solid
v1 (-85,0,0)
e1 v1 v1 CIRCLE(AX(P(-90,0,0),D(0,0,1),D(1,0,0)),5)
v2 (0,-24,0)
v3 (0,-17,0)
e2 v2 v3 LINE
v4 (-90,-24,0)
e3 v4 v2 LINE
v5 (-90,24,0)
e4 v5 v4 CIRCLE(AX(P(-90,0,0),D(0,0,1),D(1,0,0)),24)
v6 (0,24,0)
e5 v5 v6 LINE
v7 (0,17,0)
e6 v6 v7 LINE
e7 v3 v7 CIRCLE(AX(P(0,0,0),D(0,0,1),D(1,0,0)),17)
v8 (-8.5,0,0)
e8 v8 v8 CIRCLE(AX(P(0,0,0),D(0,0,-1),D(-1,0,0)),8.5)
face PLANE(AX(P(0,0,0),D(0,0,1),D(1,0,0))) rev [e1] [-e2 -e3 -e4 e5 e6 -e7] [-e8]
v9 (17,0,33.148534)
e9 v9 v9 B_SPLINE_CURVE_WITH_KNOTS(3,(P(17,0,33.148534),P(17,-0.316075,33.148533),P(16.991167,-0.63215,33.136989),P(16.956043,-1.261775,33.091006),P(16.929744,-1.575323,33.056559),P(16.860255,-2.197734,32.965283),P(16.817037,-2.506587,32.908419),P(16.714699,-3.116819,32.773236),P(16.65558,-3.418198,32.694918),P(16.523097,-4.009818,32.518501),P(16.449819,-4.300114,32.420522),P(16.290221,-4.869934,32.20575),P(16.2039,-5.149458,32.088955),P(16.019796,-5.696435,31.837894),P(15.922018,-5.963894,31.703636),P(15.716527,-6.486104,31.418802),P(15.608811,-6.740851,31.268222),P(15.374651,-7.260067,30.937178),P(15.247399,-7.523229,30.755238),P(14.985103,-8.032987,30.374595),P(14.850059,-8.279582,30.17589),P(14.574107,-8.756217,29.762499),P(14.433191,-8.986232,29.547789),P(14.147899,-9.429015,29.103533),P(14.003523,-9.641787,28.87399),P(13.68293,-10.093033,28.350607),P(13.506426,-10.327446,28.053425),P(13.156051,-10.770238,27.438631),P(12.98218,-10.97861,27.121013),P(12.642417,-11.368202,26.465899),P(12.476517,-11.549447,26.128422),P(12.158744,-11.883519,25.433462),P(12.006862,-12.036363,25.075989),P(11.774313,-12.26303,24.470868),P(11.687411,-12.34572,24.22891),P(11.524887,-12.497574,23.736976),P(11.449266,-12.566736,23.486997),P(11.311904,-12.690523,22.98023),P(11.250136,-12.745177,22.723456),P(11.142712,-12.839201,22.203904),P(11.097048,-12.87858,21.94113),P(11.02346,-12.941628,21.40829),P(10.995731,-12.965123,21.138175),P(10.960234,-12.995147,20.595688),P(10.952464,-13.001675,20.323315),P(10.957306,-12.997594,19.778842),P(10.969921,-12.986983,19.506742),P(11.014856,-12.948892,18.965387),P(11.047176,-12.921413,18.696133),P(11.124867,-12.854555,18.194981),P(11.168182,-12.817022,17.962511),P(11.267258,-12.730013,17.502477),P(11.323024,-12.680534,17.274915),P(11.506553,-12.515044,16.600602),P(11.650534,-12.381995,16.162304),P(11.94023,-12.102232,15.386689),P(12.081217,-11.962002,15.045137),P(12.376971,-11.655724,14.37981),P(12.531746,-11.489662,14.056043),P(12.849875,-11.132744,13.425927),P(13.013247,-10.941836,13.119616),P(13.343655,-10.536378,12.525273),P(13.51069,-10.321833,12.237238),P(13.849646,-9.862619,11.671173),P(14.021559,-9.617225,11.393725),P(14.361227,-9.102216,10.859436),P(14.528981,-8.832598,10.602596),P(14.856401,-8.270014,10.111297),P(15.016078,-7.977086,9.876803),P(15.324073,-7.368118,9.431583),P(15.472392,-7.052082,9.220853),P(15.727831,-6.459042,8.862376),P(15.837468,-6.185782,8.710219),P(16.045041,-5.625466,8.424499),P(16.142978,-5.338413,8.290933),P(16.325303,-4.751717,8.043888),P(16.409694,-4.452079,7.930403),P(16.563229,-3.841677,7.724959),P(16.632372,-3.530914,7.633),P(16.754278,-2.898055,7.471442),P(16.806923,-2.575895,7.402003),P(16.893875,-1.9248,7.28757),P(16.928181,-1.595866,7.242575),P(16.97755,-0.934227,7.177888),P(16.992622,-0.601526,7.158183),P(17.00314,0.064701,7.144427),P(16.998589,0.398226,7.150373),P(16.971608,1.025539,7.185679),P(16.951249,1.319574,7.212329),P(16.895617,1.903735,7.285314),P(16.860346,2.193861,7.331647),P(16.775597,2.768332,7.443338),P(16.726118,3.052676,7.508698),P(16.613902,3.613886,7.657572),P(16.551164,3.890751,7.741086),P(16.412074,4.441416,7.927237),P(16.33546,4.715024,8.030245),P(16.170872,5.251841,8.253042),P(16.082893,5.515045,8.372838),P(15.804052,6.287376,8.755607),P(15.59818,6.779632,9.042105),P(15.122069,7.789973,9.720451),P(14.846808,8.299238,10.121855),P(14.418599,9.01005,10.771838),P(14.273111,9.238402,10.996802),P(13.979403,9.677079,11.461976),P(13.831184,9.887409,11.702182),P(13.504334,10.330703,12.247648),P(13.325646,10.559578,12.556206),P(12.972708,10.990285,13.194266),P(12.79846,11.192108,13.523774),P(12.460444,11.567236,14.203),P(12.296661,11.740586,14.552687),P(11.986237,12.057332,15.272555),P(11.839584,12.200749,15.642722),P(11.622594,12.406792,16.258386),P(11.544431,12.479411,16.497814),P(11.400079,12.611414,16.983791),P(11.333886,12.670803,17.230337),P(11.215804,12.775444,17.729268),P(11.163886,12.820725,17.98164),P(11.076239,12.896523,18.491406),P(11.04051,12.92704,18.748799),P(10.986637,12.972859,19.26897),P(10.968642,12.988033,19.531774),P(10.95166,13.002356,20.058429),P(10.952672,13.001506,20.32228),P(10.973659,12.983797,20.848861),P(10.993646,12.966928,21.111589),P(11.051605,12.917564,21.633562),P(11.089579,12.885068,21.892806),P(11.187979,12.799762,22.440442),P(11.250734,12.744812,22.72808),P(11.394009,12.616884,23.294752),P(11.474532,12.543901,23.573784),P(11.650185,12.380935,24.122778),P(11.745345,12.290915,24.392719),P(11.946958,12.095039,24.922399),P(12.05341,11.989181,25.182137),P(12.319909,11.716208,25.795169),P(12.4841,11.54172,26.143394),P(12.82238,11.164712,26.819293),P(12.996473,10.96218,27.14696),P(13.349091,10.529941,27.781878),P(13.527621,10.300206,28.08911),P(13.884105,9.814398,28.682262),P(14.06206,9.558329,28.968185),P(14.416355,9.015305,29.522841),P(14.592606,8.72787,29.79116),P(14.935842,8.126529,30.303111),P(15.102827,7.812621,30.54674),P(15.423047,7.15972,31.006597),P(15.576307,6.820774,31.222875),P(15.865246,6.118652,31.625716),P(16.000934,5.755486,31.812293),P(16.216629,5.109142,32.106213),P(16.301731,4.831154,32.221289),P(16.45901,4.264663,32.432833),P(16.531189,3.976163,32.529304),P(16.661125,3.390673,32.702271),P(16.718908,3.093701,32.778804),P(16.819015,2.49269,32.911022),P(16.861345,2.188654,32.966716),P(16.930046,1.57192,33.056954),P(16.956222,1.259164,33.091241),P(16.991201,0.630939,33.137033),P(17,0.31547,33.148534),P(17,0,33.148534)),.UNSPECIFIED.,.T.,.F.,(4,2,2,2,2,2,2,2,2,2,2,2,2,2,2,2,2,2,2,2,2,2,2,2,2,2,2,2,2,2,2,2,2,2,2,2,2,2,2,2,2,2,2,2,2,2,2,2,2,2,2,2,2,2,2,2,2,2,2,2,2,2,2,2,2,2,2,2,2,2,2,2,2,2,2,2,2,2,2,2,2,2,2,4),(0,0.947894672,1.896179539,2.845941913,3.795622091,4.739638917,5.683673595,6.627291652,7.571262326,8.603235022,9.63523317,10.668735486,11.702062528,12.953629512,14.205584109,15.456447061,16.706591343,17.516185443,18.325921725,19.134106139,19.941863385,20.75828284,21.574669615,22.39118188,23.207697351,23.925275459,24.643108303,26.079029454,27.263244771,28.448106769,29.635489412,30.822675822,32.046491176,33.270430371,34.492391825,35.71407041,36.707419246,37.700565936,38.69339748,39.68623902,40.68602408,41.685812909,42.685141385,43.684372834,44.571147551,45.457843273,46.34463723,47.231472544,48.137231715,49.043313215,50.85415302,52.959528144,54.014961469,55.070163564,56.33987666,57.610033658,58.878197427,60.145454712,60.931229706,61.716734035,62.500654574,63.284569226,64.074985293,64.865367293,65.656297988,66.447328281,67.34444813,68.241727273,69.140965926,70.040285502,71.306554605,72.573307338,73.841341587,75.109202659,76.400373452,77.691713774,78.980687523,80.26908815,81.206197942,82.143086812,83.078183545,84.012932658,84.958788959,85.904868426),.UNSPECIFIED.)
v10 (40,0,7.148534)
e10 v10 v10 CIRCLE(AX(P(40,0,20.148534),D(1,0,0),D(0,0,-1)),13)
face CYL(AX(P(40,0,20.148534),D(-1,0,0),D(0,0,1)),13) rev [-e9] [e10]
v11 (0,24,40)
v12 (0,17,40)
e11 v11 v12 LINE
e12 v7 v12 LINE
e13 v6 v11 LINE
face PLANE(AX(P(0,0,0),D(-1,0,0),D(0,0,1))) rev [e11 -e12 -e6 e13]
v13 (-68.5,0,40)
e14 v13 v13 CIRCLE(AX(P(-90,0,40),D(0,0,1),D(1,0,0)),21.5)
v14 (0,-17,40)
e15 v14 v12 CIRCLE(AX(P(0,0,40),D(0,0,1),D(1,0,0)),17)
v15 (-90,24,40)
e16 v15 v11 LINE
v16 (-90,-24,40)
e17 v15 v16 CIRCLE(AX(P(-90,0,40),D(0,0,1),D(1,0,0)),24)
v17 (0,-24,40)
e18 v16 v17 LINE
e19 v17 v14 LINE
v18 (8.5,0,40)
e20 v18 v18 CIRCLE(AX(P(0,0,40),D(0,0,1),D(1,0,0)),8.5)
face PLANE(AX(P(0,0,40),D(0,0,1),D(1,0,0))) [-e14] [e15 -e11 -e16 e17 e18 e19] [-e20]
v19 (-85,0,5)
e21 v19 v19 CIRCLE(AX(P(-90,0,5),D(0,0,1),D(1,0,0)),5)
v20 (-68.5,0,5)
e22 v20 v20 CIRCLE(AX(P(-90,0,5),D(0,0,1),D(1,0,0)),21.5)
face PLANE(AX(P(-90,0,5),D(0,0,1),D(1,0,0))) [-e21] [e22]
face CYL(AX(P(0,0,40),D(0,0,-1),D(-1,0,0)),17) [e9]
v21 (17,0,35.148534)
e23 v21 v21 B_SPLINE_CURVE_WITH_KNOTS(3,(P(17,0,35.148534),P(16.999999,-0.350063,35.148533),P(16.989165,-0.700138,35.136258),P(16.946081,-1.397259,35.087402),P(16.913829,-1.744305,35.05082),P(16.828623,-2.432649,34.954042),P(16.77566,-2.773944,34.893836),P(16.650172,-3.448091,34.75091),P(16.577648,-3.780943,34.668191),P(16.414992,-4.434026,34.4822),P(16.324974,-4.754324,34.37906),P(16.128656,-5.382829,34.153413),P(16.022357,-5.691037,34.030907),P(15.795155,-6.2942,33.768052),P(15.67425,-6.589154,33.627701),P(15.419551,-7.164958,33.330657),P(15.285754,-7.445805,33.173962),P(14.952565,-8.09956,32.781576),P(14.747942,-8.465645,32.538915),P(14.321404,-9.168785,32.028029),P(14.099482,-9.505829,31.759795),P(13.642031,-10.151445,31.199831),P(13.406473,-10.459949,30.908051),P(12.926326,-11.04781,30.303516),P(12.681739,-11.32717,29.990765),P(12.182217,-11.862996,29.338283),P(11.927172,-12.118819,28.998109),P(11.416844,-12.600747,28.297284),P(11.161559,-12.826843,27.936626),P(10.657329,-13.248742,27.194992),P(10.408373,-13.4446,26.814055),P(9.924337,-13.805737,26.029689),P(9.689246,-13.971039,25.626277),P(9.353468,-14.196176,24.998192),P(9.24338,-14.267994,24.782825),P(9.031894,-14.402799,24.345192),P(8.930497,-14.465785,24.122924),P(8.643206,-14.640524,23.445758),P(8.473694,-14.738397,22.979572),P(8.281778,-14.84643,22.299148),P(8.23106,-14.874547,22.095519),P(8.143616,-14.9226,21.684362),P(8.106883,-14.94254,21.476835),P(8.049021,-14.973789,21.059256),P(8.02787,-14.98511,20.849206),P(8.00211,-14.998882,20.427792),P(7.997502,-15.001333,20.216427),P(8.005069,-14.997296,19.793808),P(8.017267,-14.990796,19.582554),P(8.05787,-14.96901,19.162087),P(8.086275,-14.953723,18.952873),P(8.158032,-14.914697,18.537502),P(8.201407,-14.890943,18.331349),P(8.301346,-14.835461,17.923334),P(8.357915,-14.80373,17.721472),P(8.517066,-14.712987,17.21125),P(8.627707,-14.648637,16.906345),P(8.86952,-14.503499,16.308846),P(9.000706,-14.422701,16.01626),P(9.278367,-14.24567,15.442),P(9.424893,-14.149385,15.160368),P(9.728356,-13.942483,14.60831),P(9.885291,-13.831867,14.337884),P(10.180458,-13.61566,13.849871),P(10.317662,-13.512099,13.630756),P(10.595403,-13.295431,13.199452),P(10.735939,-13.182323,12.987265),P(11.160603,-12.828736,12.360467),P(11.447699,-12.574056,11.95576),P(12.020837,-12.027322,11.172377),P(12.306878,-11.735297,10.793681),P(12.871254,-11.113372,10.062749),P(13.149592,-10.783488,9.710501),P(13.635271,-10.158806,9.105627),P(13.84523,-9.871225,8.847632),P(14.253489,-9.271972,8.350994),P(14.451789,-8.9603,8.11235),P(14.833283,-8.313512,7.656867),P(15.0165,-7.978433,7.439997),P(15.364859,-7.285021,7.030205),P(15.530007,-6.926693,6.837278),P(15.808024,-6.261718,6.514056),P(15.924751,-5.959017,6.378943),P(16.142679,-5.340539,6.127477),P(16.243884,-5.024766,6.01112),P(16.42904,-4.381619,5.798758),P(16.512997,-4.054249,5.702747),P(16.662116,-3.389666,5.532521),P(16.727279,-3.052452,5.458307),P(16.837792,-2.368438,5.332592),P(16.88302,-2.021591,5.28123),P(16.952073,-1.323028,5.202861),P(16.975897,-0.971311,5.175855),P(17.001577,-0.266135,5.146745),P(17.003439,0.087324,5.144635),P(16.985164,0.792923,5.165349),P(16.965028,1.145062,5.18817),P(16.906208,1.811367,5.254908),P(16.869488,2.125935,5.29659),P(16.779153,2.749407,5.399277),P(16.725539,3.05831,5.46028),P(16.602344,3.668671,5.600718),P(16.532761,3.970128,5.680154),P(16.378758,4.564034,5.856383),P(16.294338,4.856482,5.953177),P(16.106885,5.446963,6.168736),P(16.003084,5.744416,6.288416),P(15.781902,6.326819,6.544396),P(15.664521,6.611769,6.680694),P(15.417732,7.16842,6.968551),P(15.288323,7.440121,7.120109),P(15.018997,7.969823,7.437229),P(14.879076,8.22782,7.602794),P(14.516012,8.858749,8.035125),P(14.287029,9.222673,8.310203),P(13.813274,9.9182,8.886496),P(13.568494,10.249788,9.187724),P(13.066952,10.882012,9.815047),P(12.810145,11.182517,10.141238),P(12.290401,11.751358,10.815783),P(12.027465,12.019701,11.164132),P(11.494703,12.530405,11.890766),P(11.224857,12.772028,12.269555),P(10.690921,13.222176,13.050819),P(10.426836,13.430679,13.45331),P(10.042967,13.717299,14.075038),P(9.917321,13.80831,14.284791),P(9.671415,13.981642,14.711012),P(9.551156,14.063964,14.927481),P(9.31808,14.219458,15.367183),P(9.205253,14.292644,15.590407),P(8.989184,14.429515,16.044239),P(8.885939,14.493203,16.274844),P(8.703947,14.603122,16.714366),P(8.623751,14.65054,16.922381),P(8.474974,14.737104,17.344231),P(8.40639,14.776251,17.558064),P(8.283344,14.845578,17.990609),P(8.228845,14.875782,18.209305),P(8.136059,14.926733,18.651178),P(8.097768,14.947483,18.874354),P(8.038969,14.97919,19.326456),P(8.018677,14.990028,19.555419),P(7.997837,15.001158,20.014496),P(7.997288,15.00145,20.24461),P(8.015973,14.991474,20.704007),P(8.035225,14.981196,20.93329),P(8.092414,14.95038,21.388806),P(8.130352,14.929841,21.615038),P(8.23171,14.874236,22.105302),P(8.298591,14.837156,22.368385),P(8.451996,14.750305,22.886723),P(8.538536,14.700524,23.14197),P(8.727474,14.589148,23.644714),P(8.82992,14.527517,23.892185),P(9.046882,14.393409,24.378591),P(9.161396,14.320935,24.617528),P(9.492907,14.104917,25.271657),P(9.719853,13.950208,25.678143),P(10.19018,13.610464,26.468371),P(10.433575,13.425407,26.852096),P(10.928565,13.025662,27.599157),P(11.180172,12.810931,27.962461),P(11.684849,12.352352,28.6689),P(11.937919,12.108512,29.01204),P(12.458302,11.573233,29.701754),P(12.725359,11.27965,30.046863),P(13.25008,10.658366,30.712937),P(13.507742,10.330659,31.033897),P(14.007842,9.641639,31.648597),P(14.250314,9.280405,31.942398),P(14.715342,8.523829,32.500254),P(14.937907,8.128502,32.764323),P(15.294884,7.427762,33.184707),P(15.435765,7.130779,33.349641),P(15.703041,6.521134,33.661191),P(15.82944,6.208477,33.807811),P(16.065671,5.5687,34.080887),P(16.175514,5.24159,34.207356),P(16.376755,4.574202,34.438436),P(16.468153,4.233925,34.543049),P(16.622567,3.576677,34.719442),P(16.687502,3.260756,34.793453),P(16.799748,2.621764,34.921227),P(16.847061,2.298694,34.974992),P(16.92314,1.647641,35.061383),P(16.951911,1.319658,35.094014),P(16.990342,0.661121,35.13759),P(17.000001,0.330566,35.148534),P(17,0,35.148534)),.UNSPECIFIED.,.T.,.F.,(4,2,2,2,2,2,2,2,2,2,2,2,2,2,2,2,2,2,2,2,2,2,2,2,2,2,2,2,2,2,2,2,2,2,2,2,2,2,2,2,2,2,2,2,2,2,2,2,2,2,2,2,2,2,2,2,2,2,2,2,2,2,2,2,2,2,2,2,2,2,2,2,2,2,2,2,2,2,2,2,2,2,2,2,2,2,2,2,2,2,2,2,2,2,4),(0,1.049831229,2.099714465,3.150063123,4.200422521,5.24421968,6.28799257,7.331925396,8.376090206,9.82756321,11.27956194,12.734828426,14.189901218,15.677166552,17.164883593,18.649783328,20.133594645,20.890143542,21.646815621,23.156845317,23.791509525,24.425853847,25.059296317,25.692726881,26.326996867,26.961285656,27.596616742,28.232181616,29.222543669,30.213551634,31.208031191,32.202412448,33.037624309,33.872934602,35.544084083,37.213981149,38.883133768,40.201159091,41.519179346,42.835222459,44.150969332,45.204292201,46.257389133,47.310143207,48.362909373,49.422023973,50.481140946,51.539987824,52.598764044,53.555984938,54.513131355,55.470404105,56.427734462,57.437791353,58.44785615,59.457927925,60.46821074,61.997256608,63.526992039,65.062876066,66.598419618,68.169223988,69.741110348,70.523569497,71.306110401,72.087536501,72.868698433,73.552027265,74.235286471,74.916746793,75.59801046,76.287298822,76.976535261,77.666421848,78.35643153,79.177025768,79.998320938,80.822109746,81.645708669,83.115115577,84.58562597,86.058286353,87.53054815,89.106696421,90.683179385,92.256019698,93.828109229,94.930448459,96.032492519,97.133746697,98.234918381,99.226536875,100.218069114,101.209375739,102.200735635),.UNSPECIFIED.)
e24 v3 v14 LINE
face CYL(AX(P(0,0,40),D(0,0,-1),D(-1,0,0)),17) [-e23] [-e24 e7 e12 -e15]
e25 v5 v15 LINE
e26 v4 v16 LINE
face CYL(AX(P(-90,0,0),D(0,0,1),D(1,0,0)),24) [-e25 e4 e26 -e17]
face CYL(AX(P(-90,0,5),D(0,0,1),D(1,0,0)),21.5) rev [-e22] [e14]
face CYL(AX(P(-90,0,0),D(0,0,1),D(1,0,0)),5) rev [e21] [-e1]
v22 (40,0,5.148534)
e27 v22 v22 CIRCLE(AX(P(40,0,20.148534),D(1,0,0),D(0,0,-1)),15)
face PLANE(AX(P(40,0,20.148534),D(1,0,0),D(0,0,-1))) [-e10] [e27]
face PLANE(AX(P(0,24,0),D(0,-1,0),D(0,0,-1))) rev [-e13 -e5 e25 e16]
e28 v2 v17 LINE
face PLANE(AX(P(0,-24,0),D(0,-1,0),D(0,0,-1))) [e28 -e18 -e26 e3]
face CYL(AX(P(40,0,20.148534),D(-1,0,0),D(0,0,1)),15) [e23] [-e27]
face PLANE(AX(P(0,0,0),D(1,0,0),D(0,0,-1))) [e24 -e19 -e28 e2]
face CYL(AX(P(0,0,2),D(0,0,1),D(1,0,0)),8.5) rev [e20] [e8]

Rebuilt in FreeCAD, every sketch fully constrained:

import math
import FreeCAD as App
import Part
import Sketcher
Q = App.Units.Quantity

doc = App.newDocument("Part")
body = doc.addObject("PartDesign::Body", "Body")

# Sketch on XY plane
sketch1 = body.newObject("Sketcher::SketchObject", "Sketch")
sketch1.AttachmentSupport = (doc.getObject("XY_Plane"), [""])
sketch1.MapMode = "FlatFace"
sketch1.addGeometry(Part.Circle(App.Vector(0, 0, 0), App.Vector(0, 0, 1), 17), False)
sketch1.addConstraint([
    Sketcher.Constraint("Coincident", 0, 3, -1, 1),
    Sketcher.Constraint("Diameter", 0, Q("34 mm")),
])
pad1 = body.newObject("PartDesign::Pad", "Pad")
pad1.Profile = sketch1
pad1.Length = 40

# Sketch on XY plane
sketch2 = body.newObject("Sketcher::SketchObject", "Sketch001")
sketch2.AttachmentSupport = (doc.getObject("XY_Plane"), [""])
sketch2.MapMode = "FlatFace"
sketch2.AttachmentOffset = App.Placement(App.Vector(0, 0, 40), App.Rotation())
sketch2.addGeometry(Part.Circle(App.Vector(0, 0, 0), App.Vector(0, 0, 1), 8.5), False)
sketch2.addConstraint([
    Sketcher.Constraint("Coincident", 0, 3, -1, 1),
    Sketcher.Constraint("Diameter", 0, Q("17 mm")),
])
pocket1 = body.newObject("PartDesign::Pocket", "Pocket")
pocket1.Profile = sketch2
pocket1.Length = 38

# Sketch on XY plane
sketch3 = body.newObject("Sketcher::SketchObject", "Sketch002")
sketch3.AttachmentSupport = (doc.getObject("XY_Plane"), [""])
sketch3.MapMode = "FlatFace"
sketch3.AttachmentOffset = App.Placement(App.Vector(0, 0, 38), App.Rotation())
sketch3.addGeometry(Part.Circle(App.Vector(0, 0, 0), App.Vector(0, 0, 1), 8.5), False)
sketch3.addConstraint([
    Sketcher.Constraint("Coincident", 0, 3, -1, 1),
    Sketcher.Constraint("Diameter", 0, Q("17 mm")),
])
pocket2 = body.newObject("PartDesign::Pocket", "Pocket001")
pocket2.Profile = sketch3
pocket2.Length = 38

# Sketch on YZ plane
sketch4 = body.newObject("Sketcher::SketchObject", "Sketch003")
sketch4.AttachmentSupport = (doc.getObject("YZ_Plane"), [""])
sketch4.MapMode = "FlatFace"
sketch4.addGeometry([
    Part.Circle(App.Vector(0, 20.148534, 0), App.Vector(0, 0, 1), 15),
    Part.Circle(App.Vector(0, 20.148534, 0), App.Vector(0, 0, 1), 13),
], False)
sketch4.addConstraint([
    Sketcher.Constraint("Coincident", 1, 3, 0, 3),
    Sketcher.Constraint("PointOnObject", 0, 3, -2),
    Sketcher.Constraint("Diameter", 0, Q("30 mm")),
    Sketcher.Constraint("Diameter", 1, Q("26 mm")),
    Sketcher.Constraint("DistanceY", -1, 1, 0, 3, Q("20.148534 mm")),
])
pad2 = body.newObject("PartDesign::Pad", "Pad001")
pad2.Profile = sketch4
pad2.Length = 40

# Sketch on XY plane
sketch5 = body.newObject("Sketcher::SketchObject", "Sketch004")
sketch5.AttachmentSupport = (doc.getObject("XY_Plane"), [""])
sketch5.MapMode = "FlatFace"
sketch5.AttachmentOffset = App.Placement(App.Vector(0, 0, 50), App.Rotation())
sketch5.addGeometry(Part.Circle(App.Vector(0, 0, 0), App.Vector(0, 0, 1), 8.5), False)
sketch5.addConstraint([
    Sketcher.Constraint("Coincident", 0, 3, -1, 1),
    Sketcher.Constraint("Diameter", 0, Q("17 mm")),
])
pocket3 = body.newObject("PartDesign::Pocket", "Pocket002")
pocket3.Profile = sketch5
pocket3.Length = 50

# Sketch on XY plane
sketch6 = body.newObject("Sketcher::SketchObject", "Sketch005")
sketch6.AttachmentSupport = (doc.getObject("XY_Plane"), [""])
sketch6.MapMode = "FlatFace"
sketch6.addGeometry([
    Part.ArcOfCircle(Part.Circle(App.Vector(-90, 0, 0), App.Vector(0, 0, 1), 24), math.radians(90), math.radians(270)),  # 0
    Part.LineSegment(App.Vector(-90, -24, 0), App.Vector(0, -24, 0)),  # 1
    Part.LineSegment(App.Vector(0, -24, 0), App.Vector(0, -17, 0)),  # 2
    Part.ArcOfCircle(Part.Circle(App.Vector(0, 0, 0), App.Vector(0, 0, 1), 17), math.radians(90), math.radians(270)),  # 3
    Part.LineSegment(App.Vector(0, 17, 0), App.Vector(0, 24, 0)),  # 4
    Part.LineSegment(App.Vector(0, 24, 0), App.Vector(-90, 24, 0)),  # 5
], False)
sketch6.addConstraint([
    Sketcher.Constraint("Tangent", 0, 2, 1, 1),
    Sketcher.Constraint("Coincident", 1, 2, 2, 1),
    Sketcher.Constraint("Coincident", 2, 2, 3, 2),
    Sketcher.Constraint("Coincident", 3, 1, 4, 1),
    Sketcher.Constraint("Coincident", 4, 2, 5, 1),
    Sketcher.Constraint("Tangent", 5, 2, 0, 1),
    Sketcher.Constraint("Horizontal", 1),
    Sketcher.Constraint("Vertical", 2),
    Sketcher.Constraint("Vertical", 4),
    Sketcher.Constraint("Horizontal", 5),
    Sketcher.Constraint("Coincident", 3, 3, -1, 1),
    Sketcher.Constraint("Symmetric", 1, 2, 4, 2, -1, 1),
    Sketcher.Constraint("PointOnObject", 1, 2, -2),
    Sketcher.Constraint("Radius", 0, Q("24 mm")),
    Sketcher.Constraint("Radius", 3, Q("17 mm")),
    Sketcher.Constraint("DistanceX", 1, 1, 1, 2, Q("90 mm")),
])
pad3 = body.newObject("PartDesign::Pad", "Pad002")
pad3.Profile = sketch6
pad3.Length = 40

# Sketch on XY plane
sketch7 = body.newObject("Sketcher::SketchObject", "Sketch006")
sketch7.AttachmentSupport = (doc.getObject("XY_Plane"), [""])
sketch7.MapMode = "FlatFace"
sketch7.AttachmentOffset = App.Placement(App.Vector(0, 0, 40), App.Rotation())
sketch7.addGeometry(Part.Circle(App.Vector(-90, 0, 0), App.Vector(0, 0, 1), 21.5), False)
sketch7.addConstraint([
    Sketcher.Constraint("PointOnObject", 0, 3, -1),
    Sketcher.Constraint("Diameter", 0, Q("43 mm")),
    Sketcher.Constraint("DistanceX", 0, 3, -1, 1, Q("90 mm")),
])
pocket4 = body.newObject("PartDesign::Pocket", "Pocket003")
pocket4.Profile = sketch7
pocket4.Length = 35

# Sketch on XY plane
sketch8 = body.newObject("Sketcher::SketchObject", "Sketch007")
sketch8.AttachmentSupport = (doc.getObject("XY_Plane"), [""])
sketch8.MapMode = "FlatFace"
sketch8.AttachmentOffset = App.Placement(App.Vector(0, 0, 5), App.Rotation())
sketch8.addGeometry(Part.Circle(App.Vector(-90, 0, 0), App.Vector(0, 0, 1), 5), False)
sketch8.addConstraint([
    Sketcher.Constraint("PointOnObject", 0, 3, -1),
    Sketcher.Constraint("Diameter", 0, Q("10 mm")),
    Sketcher.Constraint("DistanceX", 0, 3, -1, 1, Q("90 mm")),
])
pocket5 = body.newObject("PartDesign::Pocket", "Pocket004")
pocket5.Profile = sketch8
pocket5.Type = "ThroughAll"

doc.recompute()
